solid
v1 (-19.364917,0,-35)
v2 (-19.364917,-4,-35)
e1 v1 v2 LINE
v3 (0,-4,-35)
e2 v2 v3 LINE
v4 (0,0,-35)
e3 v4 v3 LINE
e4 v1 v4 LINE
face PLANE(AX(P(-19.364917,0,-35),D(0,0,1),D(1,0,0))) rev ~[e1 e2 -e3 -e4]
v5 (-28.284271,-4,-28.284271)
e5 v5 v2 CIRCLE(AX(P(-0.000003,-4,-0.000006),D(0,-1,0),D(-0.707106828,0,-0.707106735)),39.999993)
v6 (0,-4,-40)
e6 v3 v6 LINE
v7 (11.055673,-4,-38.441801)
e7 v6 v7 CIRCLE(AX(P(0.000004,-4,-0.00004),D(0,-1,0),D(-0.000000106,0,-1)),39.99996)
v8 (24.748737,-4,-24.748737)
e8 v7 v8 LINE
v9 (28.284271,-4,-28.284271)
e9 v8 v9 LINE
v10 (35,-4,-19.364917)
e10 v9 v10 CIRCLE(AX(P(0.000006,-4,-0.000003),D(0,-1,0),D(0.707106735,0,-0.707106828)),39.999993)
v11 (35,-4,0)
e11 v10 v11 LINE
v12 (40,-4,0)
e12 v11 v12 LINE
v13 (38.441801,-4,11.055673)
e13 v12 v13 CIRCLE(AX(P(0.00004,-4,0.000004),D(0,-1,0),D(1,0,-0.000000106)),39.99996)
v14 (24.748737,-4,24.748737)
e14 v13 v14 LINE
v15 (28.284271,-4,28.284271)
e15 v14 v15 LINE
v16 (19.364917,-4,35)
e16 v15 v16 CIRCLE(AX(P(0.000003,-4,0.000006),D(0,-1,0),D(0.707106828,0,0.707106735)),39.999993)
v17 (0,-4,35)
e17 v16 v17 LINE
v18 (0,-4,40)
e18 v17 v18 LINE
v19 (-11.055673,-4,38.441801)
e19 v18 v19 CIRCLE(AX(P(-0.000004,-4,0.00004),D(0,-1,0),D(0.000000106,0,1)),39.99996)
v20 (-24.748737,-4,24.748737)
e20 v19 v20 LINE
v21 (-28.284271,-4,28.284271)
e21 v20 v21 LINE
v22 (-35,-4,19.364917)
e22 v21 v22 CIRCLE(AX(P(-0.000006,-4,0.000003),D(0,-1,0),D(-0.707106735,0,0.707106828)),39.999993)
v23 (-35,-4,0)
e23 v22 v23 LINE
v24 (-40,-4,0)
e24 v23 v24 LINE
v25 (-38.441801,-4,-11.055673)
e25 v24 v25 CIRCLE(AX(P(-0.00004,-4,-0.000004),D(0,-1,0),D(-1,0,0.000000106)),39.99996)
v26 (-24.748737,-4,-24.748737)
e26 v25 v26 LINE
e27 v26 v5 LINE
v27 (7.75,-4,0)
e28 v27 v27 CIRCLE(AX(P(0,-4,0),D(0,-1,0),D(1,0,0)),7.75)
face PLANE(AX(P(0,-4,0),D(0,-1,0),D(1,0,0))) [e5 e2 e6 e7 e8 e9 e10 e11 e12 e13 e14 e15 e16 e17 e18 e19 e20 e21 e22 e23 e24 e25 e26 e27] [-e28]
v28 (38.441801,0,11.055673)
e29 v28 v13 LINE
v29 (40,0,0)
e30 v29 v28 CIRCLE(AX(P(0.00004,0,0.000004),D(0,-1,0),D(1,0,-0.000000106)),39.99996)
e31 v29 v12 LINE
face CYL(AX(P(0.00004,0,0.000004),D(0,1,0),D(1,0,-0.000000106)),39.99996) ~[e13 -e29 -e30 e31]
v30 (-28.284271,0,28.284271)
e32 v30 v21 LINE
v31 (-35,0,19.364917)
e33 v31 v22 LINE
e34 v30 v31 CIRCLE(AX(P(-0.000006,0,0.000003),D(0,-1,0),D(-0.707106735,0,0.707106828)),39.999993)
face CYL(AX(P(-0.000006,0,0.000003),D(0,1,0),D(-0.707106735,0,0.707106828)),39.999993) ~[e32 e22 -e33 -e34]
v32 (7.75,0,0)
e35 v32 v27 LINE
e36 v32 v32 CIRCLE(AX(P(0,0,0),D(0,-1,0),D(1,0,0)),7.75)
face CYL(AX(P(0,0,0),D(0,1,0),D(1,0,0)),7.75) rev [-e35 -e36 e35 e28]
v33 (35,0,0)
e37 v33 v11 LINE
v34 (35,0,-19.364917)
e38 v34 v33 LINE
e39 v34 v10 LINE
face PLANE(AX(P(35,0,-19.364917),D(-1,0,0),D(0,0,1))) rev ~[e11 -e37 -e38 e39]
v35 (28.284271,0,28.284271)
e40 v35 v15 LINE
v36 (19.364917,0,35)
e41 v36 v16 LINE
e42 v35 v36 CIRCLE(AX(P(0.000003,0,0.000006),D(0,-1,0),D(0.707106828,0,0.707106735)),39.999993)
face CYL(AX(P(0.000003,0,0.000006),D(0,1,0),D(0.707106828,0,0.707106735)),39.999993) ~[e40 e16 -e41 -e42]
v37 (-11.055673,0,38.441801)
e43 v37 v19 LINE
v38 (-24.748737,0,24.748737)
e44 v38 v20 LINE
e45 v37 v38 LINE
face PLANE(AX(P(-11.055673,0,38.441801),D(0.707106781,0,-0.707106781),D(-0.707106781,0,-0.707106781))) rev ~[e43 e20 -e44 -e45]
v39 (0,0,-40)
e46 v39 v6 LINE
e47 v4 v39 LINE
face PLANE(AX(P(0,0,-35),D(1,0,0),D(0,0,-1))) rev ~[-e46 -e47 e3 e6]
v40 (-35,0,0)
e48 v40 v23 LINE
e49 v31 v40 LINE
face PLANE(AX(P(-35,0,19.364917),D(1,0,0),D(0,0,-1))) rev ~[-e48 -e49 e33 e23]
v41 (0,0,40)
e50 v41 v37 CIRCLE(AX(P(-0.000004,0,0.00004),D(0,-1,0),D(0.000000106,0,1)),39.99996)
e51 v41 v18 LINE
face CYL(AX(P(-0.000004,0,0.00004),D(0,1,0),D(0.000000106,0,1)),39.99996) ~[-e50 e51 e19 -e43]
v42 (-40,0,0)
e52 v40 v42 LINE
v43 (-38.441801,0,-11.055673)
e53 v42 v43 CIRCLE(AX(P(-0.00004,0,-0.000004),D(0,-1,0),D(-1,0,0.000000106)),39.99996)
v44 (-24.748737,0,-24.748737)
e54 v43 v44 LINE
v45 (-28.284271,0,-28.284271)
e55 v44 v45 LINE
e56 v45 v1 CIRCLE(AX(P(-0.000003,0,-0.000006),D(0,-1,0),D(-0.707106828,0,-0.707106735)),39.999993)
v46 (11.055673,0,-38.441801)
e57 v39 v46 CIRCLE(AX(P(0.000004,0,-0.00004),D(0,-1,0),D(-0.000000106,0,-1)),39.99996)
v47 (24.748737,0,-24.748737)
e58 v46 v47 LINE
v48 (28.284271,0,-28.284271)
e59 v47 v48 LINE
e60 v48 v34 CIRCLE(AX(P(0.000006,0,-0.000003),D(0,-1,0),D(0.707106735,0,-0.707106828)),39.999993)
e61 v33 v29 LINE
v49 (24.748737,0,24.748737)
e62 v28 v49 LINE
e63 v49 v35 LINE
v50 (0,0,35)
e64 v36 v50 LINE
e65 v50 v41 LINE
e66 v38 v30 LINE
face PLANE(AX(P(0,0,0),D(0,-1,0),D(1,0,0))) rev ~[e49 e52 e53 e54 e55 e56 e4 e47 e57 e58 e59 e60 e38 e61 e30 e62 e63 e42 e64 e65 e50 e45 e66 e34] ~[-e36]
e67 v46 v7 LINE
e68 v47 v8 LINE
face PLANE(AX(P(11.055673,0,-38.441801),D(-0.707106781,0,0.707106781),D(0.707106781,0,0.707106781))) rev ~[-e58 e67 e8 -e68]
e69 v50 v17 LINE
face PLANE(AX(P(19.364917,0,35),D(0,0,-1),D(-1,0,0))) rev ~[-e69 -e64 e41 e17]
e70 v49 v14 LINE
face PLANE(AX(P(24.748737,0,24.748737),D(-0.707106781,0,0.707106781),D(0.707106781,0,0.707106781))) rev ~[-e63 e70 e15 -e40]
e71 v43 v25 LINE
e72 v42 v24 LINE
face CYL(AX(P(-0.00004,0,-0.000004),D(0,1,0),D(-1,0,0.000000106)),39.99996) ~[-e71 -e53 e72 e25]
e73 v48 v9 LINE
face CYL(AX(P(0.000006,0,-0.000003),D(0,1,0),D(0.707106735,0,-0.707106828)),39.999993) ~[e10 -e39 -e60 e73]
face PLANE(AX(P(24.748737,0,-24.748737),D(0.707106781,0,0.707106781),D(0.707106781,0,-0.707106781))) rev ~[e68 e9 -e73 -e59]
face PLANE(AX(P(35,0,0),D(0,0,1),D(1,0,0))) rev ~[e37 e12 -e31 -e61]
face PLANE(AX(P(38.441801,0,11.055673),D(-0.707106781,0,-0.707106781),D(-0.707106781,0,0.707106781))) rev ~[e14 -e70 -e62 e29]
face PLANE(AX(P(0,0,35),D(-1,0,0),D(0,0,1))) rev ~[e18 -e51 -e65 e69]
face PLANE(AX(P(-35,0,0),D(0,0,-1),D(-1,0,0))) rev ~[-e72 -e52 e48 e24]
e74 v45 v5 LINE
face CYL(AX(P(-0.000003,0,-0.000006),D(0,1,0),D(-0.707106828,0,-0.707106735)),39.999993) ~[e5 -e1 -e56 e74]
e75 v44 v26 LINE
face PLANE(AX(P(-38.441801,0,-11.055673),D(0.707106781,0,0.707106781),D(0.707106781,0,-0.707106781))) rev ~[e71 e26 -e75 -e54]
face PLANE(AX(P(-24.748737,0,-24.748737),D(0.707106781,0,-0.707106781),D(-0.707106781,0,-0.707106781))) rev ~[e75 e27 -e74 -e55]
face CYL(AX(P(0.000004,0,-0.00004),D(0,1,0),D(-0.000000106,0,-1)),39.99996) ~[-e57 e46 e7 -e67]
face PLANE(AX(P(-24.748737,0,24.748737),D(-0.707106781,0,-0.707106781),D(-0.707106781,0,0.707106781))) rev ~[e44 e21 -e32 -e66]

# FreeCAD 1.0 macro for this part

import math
import FreeCAD as App
import Part
import Sketcher
from FreeCAD import Vector

doc = App.newDocument("Part")
body = doc.addObject("PartDesign::Body", "Body")

sketch1 = body.newObject("Sketcher::SketchObject", "Sketch")
sketch1.AttachmentSupport = (doc.getObject("XZ_Plane"), [""])
sketch1.MapMode = "FlatFace"
sketch1.addGeometry(Part.LineSegment(Vector(35, 0, 0), Vector(40, 0, 0)), False)
sketch1.addGeometry(Part.ArcOfCircle(Part.Circle(Vector(0.00004, 0.000004, 0), Vector(0, 0, 1), 39.99996), math.radians(-0.000006), math.radians(16.044985)), False)
sketch1.addGeometry(Part.LineSegment(Vector(38.441801, 11.055673, 0), Vector(24.748737, 24.748737, 0)), False)
sketch1.addGeometry(Part.LineSegment(Vector(24.748737, 24.748737, 0), Vector(28.284271, 28.284271, 0)), False)
sketch1.addGeometry(Part.ArcOfCircle(Part.Circle(Vector(0.000003, 0.000006, 0), Vector(0, 0, 1), 39.999993), math.radians(44.999996), math.radians(61.044974)), False)
sketch1.addGeometry(Part.LineSegment(Vector(19.364917, 35, 0), Vector(0, 35, 0)), False)
sketch1.addGeometry(Part.LineSegment(Vector(0, 35, 0), Vector(0, 40, 0)), False)
sketch1.addGeometry(Part.ArcOfCircle(Part.Circle(Vector(-0.000004, 0.00004, 0), Vector(0, 0, 1), 39.99996), math.radians(89.999994), math.radians(106.044985)), False)
sketch1.addGeometry(Part.LineSegment(Vector(-11.055673, 38.441801, 0), Vector(-24.748737, 24.748737, 0)), False)
sketch1.addGeometry(Part.LineSegment(Vector(-24.748737, 24.748737, 0), Vector(-28.284271, 28.284271, 0)), False)
sketch1.addGeometry(Part.ArcOfCircle(Part.Circle(Vector(-0.000006, 0.000003, 0), Vector(0, 0, 1), 39.999993), math.radians(134.999996), math.radians(151.044974)), False)
sketch1.addGeometry(Part.LineSegment(Vector(-35, 19.364917, 0), Vector(-35, 0, 0)), False)
sketch1.addGeometry(Part.LineSegment(Vector(-35, 0, 0), Vector(-40, 0, 0)), False)
sketch1.addGeometry(Part.ArcOfCircle(Part.Circle(Vector(-0.00004, -0.000004, 0), Vector(0, 0, 1), 39.99996), math.radians(179.999994), math.radians(196.044985)), False)
sketch1.addGeometry(Part.LineSegment(Vector(-38.441801, -11.055673, 0), Vector(-24.748737, -24.748737, 0)), False)
sketch1.addGeometry(Part.LineSegment(Vector(-24.748737, -24.748737, 0), Vector(-28.284271, -28.284271, 0)), False)
sketch1.addGeometry(Part.ArcOfCircle(Part.Circle(Vector(-0.000003, -0.000006, 0), Vector(0, 0, 1), 39.999993), math.radians(-135.000004), math.radians(-118.955026)), False)
sketch1.addGeometry(Part.LineSegment(Vector(-19.364917, -35, 0), Vector(0, -35, 0)), False)
sketch1.addGeometry(Part.LineSegment(Vector(0, -35, 0), Vector(0, -40, 0)), False)
sketch1.addGeometry(Part.ArcOfCircle(Part.Circle(Vector(0.000004, -0.00004, 0), Vector(0, 0, 1), 39.99996), math.radians(-90.000006), math.radians(-73.955015)), False)
sketch1.addGeometry(Part.LineSegment(Vector(11.055673, -38.441801, 0), Vector(24.748737, -24.748737, 0)), False)
sketch1.addGeometry(Part.LineSegment(Vector(24.748737, -24.748737, 0), Vector(28.284271, -28.284271, 0)), False)
sketch1.addGeometry(Part.ArcOfCircle(Part.Circle(Vector(0.000006, -0.000003, 0), Vector(0, 0, 1), 39.999993), math.radians(-45.000004), math.radians(-28.955026)), False)
sketch1.addGeometry(Part.LineSegment(Vector(35, -19.364917, 0), Vector(35, 0, 0)), False)
sketch1.addGeometry(Part.Circle(Vector(0, 0, 0), Vector(0, 0, 1), 7.75), False)
sketch1.addConstraint(Sketcher.Constraint("Coincident", 0, 2, 1, 1))
sketch1.addConstraint(Sketcher.Constraint("Coincident", 1, 2, 2, 1))
sketch1.addConstraint(Sketcher.Constraint("Coincident", 2, 2, 3, 1))
sketch1.addConstraint(Sketcher.Constraint("Coincident", 3, 2, 4, 1))
sketch1.addConstraint(Sketcher.Constraint("Coincident", 4, 2, 5, 1))
sketch1.addConstraint(Sketcher.Constraint("Coincident", 5, 2, 6, 1))
sketch1.addConstraint(Sketcher.Constraint("Coincident", 6, 2, 7, 1))
sketch1.addConstraint(Sketcher.Constraint("Coincident", 7, 2, 8, 1))
sketch1.addConstraint(Sketcher.Constraint("Coincident", 8, 2, 9, 1))
sketch1.addConstraint(Sketcher.Constraint("Coincident", 9, 2, 10, 1))
sketch1.addConstraint(Sketcher.Constraint("Coincident", 10, 2, 11, 1))
sketch1.addConstraint(Sketcher.Constraint("Coincident", 11, 2, 12, 1))
sketch1.addConstraint(Sketcher.Constraint("Coincident", 12, 2, 13, 1))
sketch1.addConstraint(Sketcher.Constraint("Coincident", 13, 2, 14, 1))
sketch1.addConstraint(Sketcher.Constraint("Coincident", 14, 2, 15, 1))
sketch1.addConstraint(Sketcher.Constraint("Coincident", 15, 2, 16, 1))
sketch1.addConstraint(Sketcher.Constraint("Coincident", 16, 2, 17, 1))
sketch1.addConstraint(Sketcher.Constraint("Coincident", 17, 2, 18, 1))
sketch1.addConstraint(Sketcher.Constraint("Coincident", 18, 2, 19, 1))
sketch1.addConstraint(Sketcher.Constraint("Coincident", 19, 2, 20, 1))
sketch1.addConstraint(Sketcher.Constraint("Coincident", 20, 2, 21, 1))
sketch1.addConstraint(Sketcher.Constraint("Coincident", 21, 2, 22, 1))
sketch1.addConstraint(Sketcher.Constraint("Coincident", 22, 2, 23, 1))
sketch1.addConstraint(Sketcher.Constraint("Coincident", 23, 2, 0, 1))
sketch1.addConstraint(Sketcher.Constraint("Horizontal", 0))
sketch1.addConstraint(Sketcher.Constraint("Horizontal", 5))
sketch1.addConstraint(Sketcher.Constraint("Vertical", 6))
sketch1.addConstraint(Sketcher.Constraint("Vertical", 11))
sketch1.addConstraint(Sketcher.Constraint("Horizontal", 12))
sketch1.addConstraint(Sketcher.Constraint("Horizontal", 17))
sketch1.addConstraint(Sketcher.Constraint("Vertical", 18))
sketch1.addConstraint(Sketcher.Constraint("Vertical", 23))
sketch1.addConstraint(Sketcher.Constraint("Coincident", 4, 3, -1, 1))
sketch1.addConstraint(Sketcher.Constraint("Coincident", 10, 3, -1, 1))
sketch1.addConstraint(Sketcher.Constraint("Coincident", 16, 3, -1, 1))
sketch1.addConstraint(Sketcher.Constraint("Coincident", 22, 3, -1, 1))
sketch1.addConstraint(Sketcher.Constraint("Coincident", 24, 3, -1, 1))
sketch1.addConstraint(Sketcher.Constraint("Equal", 1, 7))
sketch1.addConstraint(Sketcher.Constraint("Equal", 4, 10))
sketch1.addConstraint(Sketcher.Constraint("Equal", 7, 13))
sketch1.addConstraint(Sketcher.Constraint("Equal", 10, 16))
sketch1.addConstraint(Sketcher.Constraint("Equal", 13, 19))
sketch1.addConstraint(Sketcher.Constraint("Equal", 16, 22))
sketch1.addConstraint(Sketcher.Constraint("Symmetric", 1, 3, 13, 3, -1, 1))
sketch1.addConstraint(Sketcher.Constraint("Symmetric", 7, 3, 19, 3, -1, 1))
sketch1.addConstraint(Sketcher.Constraint("Symmetric", 2, 2, 14, 2, -1, 1))
sketch1.addConstraint(Sketcher.Constraint("Symmetric", 5, 2, 17, 2, -1, 1))
sketch1.addConstraint(Sketcher.Constraint("Symmetric", 8, 2, 20, 2, -1, 1))
sketch1.addConstraint(Sketcher.Constraint("Symmetric", 11, 2, 23, 2, -1, 1))
sketch1.addConstraint(Sketcher.Constraint("Symmetric", 2, 2, 8, 2, -2))
sketch1.addConstraint(Sketcher.Constraint("PointOnObject", 0, 2, -1))
sketch1.addConstraint(Sketcher.Constraint("PointOnObject", 5, 2, -2))
sketch1.addConstraint(Sketcher.Constraint("Perpendicular", 2, 3))
sketch1.addConstraint(Sketcher.Constraint("Parallel", 3, 8))
sketch1.addConstraint(Sketcher.Constraint("Perpendicular", 8, 9))
sketch1.addConstraint(Sketcher.Constraint("Parallel", 9, 14))
sketch1.addConstraint(Sketcher.Constraint("Perpendicular", 14, 15))
sketch1.addConstraint(Sketcher.Constraint("Parallel", 15, 20))
sketch1.addConstraint(Sketcher.Constraint("Perpendicular", 20, 21))
sketch1.addConstraint(Sketcher.Constraint("Horizontal", 1, 3, 10, 3))
sketch1.addConstraint(Sketcher.Constraint("Horizontal", 3, 2, 9, 2))
sketch1.addConstraint(Sketcher.Constraint("Vertical", 7, 3, 16, 3))
sketch1.addConstraint(Sketcher.Constraint("Equal", 12, 6))
sketch1.addConstraint(Sketcher.Constraint("Equal", 17, 11))
sketch1.addConstraint(Sketcher.Constraint("Equal", 2, 8))
sketch1.addConstraint(Sketcher.Constraint("Diameter", 24, 15.5))
sketch1.addConstraint(Sketcher.Constraint("DistanceX", 0, 1, 0, 2, 5.0))
sketch1.addConstraint(Sketcher.Constraint("Distance", 3, 5.0))
sketch1.addConstraint(Sketcher.Constraint("DistanceX", -1, 1, 0, 2, 40.0))
sketch1.addConstraint(Sketcher.Constraint("Radius", 1, 39.99996))
sketch1.addConstraint(Sketcher.Constraint("Radius", 4, 39.999993))
pad1 = body.newObject("PartDesign::Pad", "Pad")
pad1.Profile = sketch1
pad1.Length = 4

doc.recompute()
